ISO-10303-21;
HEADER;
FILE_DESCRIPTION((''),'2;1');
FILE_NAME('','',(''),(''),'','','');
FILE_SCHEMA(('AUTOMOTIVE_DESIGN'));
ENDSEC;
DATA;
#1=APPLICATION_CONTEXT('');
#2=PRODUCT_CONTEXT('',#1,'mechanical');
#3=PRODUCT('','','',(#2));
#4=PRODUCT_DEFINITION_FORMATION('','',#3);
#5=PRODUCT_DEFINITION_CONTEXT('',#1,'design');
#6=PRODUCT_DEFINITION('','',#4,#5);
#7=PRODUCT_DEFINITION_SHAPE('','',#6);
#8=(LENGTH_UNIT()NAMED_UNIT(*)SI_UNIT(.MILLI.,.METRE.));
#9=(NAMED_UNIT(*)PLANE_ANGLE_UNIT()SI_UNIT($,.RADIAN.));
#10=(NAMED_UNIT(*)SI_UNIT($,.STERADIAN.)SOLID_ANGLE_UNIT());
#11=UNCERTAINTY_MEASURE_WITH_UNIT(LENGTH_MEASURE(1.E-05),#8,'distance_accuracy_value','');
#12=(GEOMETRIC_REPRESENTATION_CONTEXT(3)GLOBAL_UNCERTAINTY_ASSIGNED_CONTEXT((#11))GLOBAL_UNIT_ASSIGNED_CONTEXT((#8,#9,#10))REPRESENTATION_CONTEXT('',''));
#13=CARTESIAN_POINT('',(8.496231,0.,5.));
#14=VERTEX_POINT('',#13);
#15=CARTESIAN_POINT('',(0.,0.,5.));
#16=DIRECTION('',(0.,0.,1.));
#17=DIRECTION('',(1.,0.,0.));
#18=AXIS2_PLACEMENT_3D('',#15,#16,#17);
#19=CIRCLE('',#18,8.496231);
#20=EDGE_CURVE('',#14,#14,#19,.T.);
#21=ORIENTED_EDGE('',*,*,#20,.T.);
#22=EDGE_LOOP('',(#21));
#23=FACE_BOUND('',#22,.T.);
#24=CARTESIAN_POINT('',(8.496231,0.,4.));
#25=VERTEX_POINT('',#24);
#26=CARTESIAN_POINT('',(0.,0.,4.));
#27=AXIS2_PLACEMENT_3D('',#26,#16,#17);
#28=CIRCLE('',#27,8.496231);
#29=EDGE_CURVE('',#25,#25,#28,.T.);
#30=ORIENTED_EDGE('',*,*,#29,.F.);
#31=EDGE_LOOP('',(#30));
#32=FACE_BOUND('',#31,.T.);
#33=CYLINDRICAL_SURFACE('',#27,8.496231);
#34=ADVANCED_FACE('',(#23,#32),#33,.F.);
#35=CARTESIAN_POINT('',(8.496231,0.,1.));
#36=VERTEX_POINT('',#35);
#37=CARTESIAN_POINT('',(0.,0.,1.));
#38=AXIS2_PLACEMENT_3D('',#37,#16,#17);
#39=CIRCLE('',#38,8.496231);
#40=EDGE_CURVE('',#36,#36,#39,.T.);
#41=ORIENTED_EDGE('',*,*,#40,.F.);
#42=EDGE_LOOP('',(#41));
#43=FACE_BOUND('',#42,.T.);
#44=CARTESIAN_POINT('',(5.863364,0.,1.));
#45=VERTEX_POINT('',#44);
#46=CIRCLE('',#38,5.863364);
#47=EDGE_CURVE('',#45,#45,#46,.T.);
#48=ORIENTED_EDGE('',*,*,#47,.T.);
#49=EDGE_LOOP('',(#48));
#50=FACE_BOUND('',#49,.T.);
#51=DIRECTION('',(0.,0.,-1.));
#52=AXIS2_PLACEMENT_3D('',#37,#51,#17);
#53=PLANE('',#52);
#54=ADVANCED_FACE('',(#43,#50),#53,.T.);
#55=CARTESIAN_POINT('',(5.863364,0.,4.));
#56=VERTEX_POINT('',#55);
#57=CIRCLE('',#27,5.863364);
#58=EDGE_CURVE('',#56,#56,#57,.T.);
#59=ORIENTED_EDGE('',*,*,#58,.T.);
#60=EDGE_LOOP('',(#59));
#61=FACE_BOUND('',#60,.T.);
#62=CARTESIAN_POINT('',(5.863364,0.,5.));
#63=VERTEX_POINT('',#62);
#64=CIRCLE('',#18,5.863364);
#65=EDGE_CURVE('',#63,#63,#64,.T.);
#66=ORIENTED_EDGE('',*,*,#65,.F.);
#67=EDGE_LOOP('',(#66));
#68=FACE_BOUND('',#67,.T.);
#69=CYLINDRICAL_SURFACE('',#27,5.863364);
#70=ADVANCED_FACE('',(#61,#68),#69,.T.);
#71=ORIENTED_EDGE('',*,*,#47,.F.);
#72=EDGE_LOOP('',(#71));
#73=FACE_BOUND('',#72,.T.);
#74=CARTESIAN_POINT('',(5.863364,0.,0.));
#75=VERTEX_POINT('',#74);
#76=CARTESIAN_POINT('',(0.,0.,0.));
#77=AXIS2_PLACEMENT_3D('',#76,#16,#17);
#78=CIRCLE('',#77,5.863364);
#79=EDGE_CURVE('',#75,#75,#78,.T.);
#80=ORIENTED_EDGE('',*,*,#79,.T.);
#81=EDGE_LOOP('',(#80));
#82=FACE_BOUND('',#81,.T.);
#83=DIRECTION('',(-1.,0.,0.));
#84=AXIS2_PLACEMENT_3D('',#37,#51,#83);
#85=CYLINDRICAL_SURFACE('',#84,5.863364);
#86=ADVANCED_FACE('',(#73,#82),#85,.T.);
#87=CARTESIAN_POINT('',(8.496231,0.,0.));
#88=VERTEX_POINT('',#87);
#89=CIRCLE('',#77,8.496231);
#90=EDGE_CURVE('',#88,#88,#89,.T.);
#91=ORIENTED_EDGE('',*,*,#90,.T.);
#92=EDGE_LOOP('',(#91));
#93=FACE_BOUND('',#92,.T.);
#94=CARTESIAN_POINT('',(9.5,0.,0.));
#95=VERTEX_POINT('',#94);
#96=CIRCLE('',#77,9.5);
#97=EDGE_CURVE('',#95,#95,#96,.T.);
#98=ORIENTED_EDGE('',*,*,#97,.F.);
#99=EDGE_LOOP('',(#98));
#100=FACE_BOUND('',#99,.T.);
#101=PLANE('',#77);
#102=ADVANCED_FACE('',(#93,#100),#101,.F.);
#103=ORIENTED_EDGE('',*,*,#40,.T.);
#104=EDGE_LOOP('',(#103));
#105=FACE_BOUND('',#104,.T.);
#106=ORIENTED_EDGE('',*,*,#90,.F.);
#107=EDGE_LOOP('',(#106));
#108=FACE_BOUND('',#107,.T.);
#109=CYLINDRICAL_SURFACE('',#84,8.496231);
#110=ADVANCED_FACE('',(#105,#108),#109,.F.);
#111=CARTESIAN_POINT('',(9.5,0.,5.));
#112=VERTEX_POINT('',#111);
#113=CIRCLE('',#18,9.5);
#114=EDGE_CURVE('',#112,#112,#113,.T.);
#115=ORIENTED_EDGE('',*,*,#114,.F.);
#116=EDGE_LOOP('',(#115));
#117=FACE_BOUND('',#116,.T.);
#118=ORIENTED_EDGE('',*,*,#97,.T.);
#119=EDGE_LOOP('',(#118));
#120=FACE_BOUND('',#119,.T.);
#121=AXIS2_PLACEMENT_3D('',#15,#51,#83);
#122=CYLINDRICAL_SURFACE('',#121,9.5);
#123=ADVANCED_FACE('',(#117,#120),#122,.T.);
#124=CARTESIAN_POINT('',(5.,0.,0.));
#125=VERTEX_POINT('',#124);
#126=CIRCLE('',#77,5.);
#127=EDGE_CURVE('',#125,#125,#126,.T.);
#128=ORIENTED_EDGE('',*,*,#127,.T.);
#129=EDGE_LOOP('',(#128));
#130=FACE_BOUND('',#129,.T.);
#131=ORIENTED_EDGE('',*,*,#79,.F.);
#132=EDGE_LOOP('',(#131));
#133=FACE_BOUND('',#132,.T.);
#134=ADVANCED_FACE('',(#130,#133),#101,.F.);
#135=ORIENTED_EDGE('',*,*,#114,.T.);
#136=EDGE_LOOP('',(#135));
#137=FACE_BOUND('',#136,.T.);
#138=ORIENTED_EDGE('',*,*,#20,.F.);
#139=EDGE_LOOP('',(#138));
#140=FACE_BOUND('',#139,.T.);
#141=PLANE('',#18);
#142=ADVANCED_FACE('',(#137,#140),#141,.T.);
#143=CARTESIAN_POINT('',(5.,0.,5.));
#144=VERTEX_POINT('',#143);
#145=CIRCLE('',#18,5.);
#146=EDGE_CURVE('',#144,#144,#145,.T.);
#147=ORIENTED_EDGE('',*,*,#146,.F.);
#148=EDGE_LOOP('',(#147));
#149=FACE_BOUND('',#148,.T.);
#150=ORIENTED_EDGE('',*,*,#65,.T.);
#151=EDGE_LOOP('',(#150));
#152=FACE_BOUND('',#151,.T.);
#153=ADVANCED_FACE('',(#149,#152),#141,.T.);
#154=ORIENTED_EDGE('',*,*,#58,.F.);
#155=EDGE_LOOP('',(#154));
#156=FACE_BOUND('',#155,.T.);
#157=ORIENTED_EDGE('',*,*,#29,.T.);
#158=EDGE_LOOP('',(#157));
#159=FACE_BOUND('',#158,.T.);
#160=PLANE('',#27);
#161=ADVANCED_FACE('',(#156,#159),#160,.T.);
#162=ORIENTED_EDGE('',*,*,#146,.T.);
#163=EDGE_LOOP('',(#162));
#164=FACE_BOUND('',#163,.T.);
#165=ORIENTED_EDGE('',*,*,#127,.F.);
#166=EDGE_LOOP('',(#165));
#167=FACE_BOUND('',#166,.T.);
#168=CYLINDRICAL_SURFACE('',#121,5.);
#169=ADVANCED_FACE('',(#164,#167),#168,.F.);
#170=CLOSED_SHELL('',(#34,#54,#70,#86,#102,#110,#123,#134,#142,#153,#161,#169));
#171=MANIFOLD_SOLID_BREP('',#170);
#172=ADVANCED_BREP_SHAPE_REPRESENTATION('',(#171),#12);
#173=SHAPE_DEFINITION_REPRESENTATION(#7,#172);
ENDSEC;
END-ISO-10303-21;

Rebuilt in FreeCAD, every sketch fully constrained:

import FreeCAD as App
import Part
import Sketcher
Q = App.Units.Quantity

doc = App.newDocument("Part")
params = doc.addObject("Spreadsheet::Sheet", "Params")
for row, (alias, value) in enumerate([
    ("sketch1_diameter", "19 mm"),
    ("sketch1_diameter2", "10 mm"),
    ("pad1_length", "5 mm"),
    ("pocket1_length", "1 mm"),
], start=1):
    params.set(f"A{row}", alias)
    params.set(f"B{row}", "=" + value)
    params.setAlias(f"B{row}", alias)

body = doc.addObject("PartDesign::Body", "Body")

sketch1 = body.newObject("Sketcher::SketchObject", "Sketch")
sketch1.AttachmentSupport = (doc.getObject("XY_Plane"), [""])
sketch1.MapMode = "FlatFace"
sketch1.addGeometry([
    Part.Circle(App.Vector(0, 0, 0), App.Vector(0, 0, 1), 10),
    Part.Circle(App.Vector(0, 0, 0), App.Vector(0, 0, 1), 5),
], False)
sketch1.addConstraint([
    Sketcher.Constraint("Coincident", 0, 3, -1, 1),
    Sketcher.Constraint("Coincident", 1, 3, -1, 1),
    Sketcher.Constraint("Diameter", 0, Q("19 mm")),
    Sketcher.Constraint("Diameter", 1, Q("10 mm")),
])
sketch1.setExpression("Constraints[2]", "Params.sketch1_diameter")
sketch1.setExpression("Constraints[3]", "Params.sketch1_diameter2")
pad1 = body.newObject("PartDesign::Pad", "Pad")
pad1.Profile = sketch1
pad1.setExpression("Length", "Params.pad1_length")

sketch2 = body.newObject("Sketcher::SketchObject", "Sketch001")
sketch2.AttachmentSupport = (doc.getObject("XY_Plane"), [""])
sketch2.MapMode = "FlatFace"
sketch2.AttachmentOffset = App.Placement(App.Vector(0, 0, 5), App.Rotation())
sketch2.addGeometry([
    Part.Circle(App.Vector(0, 0, 0), App.Vector(0, 0, 1), 8),
    Part.Circle(App.Vector(0, 0, 0), App.Vector(0, 0, 1), 6),
], False)
sketch2.addConstraint([
    Sketcher.Constraint("Coincident", 0, 3, -1, 1),
    Sketcher.Constraint("Coincident", 1, 3, -1, 1),
    Sketcher.Constraint("Diameter", 0, Q("16.992462 mm")),
    Sketcher.Constraint("Diameter", 1, Q("11.726728 mm")),
])
pocket1 = body.newObject("PartDesign::Pocket", "Pocket")
pocket1.Profile = sketch2
pocket1.setExpression("Length", "Params.pocket1_length")
doc.recompute()

datumplane = body.newObject("PartDesign::Plane", "DatumPlane")
datumplane.AttachmentSupport = (doc.getObject("XY_Plane"), [""])
datumplane.MapMode = "FlatFace"
datumplane.AttachmentOffset = App.Placement(App.Vector(0, 0, 2.5), App.Rotation())
mirrored = body.newObject("PartDesign::Mirrored", "Mirrored")
mirrored.Originals = [pocket1]
mirrored.MirrorPlane = (datumplane, [""])
body.Tip = mirrored

doc.recompute()
